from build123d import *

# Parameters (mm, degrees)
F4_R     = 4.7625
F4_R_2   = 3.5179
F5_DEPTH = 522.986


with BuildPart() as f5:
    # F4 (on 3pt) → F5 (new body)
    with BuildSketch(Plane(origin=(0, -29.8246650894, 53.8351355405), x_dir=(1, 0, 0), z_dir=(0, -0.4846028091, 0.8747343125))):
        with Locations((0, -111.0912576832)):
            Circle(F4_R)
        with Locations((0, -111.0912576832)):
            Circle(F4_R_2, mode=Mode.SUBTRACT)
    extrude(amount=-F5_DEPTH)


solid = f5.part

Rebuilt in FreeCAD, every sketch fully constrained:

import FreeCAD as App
import Part
import Sketcher
Q = App.Units.Quantity

doc = App.newDocument("Part")
body = doc.addObject("PartDesign::Body", "Body")

# Sketch on an angled plane
sketch1 = body.newObject("Sketcher::SketchObject", "Sketch")
sketch1.Placement = App.Placement(App.Vector(0, -29.824665, 53.835136), App.Rotation(App.Vector(1, 0, 0), App.Vector(0, 0.874734312, 0.484602809), App.Vector(0, -0.484602809, 0.874734312), "ZXY"))
sketch1.addGeometry(Part.Circle(App.Vector(0, -111.1, 0), App.Vector(0, 0, 1), 4.8), False)
sketch1.addGeometry(Part.Circle(App.Vector(0, -111.1, 0), App.Vector(0, 0, 1), 3.5), False)
sketch1.addConstraint(Sketcher.Constraint("Coincident", 1, 3, 0, 3))
sketch1.addConstraint(Sketcher.Constraint("PointOnObject", 0, 3, -2))
sketch1.addConstraint(Sketcher.Constraint("Diameter", 0, Q("0.375 in")))
sketch1.addConstraint(Sketcher.Constraint("Diameter", 1, Q("0.277 in")))
sketch1.addConstraint(Sketcher.Constraint("DistanceY", 0, 3, -1, 1, 111.091258))
pad1 = body.newObject("PartDesign::Pad", "Pad")
pad1.Profile = sketch1
pad1.Length = Q("20.59 in")
pad1.Reversed = True

doc.recompute()
